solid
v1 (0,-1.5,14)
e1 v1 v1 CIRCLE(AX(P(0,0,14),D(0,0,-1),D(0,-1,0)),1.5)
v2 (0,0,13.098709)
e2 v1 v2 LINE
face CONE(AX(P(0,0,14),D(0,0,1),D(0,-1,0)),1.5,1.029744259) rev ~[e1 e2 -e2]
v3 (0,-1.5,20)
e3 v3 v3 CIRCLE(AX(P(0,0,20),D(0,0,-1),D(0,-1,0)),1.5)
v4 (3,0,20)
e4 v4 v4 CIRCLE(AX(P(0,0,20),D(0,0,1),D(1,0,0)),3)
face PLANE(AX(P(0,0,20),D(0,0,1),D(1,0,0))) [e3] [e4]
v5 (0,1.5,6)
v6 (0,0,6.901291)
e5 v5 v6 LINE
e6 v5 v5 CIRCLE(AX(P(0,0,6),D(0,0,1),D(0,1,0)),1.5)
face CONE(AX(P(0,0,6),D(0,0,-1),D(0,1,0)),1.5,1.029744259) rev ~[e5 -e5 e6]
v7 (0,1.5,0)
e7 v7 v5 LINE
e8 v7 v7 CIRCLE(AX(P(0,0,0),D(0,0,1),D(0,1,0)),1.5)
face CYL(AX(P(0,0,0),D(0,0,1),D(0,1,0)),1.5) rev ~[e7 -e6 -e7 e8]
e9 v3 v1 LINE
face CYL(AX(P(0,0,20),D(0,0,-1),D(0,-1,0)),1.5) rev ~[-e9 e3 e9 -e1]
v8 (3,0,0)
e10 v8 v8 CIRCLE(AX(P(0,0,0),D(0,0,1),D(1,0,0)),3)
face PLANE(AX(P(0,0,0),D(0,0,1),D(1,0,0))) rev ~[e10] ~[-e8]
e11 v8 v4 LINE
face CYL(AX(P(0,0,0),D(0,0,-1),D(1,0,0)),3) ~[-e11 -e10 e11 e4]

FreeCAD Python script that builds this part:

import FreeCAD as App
import Part
import Sketcher

V = App.Vector

doc = App.newDocument("Part")
body = doc.addObject("PartDesign::Body", "Body")

# Sketch on XY plane
sketch1 = body.newObject("Sketcher::SketchObject", "Sketch")
sketch1.AttachmentSupport = (doc.getObject("XY_Plane"), [""])
sketch1.MapMode = "FlatFace"
sketch1.addGeometry(Part.Circle(V(0, 0, 0), V(0, 0, 1), 3), False)
sketch1.addConstraint([
    Sketcher.Constraint("Coincident", 0, 3, -1, 1),
    Sketcher.Constraint("Diameter", 0, 6.0),
])
pad1 = body.newObject("PartDesign::Pad", "Pad")
pad1.Profile = sketch1
pad1.Length = 20

# Sketch on XY plane
sketch2 = body.newObject("Sketcher::SketchObject", "Sketch001")
sketch2.AttachmentSupport = (doc.getObject("XY_Plane"), [""])
sketch2.MapMode = "FlatFace"
sketch2.addGeometry(Part.Circle(V(0, 0, 0), V(0, 0, 1), 1.5), False)
sketch2.addConstraint([
    Sketcher.Constraint("Coincident", 0, 3, -1, 1),
    Sketcher.Constraint("Diameter", 0, 3.0),
])
doc.recompute()
hole = body.newObject("PartDesign::Hole", "Hole")
hole.Profile = sketch2
hole.ThreadType = "None"
hole.Diameter = 3
hole.DepthType = "Dimension"
hole.Depth = 6
hole.DrillPoint = "Angled"
hole.DrillPointAngle = 118
hole.Reversed = True

# Sketch on XY plane
sketch3 = body.newObject("Sketcher::SketchObject", "Sketch002")
sketch3.AttachmentSupport = (doc.getObject("XY_Plane"), [""])
sketch3.MapMode = "FlatFace"
sketch3.AttachmentOffset = App.Placement(V(0, 0, 20), App.Rotation())
sketch3.addGeometry(Part.Circle(V(0, 0, 0), V(0, 0, 1), 1.5), False)
sketch3.addConstraint([
    Sketcher.Constraint("Coincident", 0, 3, -1, 1),
    Sketcher.Constraint("Diameter", 0, 3.0),
])
doc.recompute()
hole2 = body.newObject("PartDesign::Hole", "Hole001")
hole2.Profile = sketch3
hole2.ThreadType = "None"
hole2.Diameter = 3
hole2.DepthType = "Dimension"
hole2.Depth = 6
hole2.DrillPoint = "Angled"
hole2.DrillPointAngle = 118

doc.recompute()
